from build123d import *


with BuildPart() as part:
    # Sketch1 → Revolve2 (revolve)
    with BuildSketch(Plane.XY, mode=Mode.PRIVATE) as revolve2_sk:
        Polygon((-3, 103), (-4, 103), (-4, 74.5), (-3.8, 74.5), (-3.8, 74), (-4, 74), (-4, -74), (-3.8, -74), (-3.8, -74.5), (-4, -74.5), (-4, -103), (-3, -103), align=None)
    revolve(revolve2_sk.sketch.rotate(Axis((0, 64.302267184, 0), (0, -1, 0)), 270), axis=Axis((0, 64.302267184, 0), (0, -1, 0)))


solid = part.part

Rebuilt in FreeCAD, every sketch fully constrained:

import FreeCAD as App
import Part
import Sketcher
from FreeCAD import Vector

doc = App.newDocument("Part")
body = doc.addObject("PartDesign::Body", "Body")

# Sketch on XY plane
sketch1 = body.newObject("Sketcher::SketchObject", "Sketch")
sketch1.AttachmentSupport = (doc.getObject("XY_Plane"), [""])
sketch1.MapMode = "FlatFace"
sketch1.addGeometry(Part.LineSegment(Vector(-3, 103, 0), Vector(-4, 103, 0)), False)
sketch1.addGeometry(Part.LineSegment(Vector(-4, 103, 0), Vector(-4, 74.5, 0)), False)
sketch1.addGeometry(Part.LineSegment(Vector(-4, 74.5, 0), Vector(-3.8, 74.5, 0)), False)
sketch1.addGeometry(Part.LineSegment(Vector(-3.8, 74.5, 0), Vector(-3.8, 74, 0)), False)
sketch1.addGeometry(Part.LineSegment(Vector(-3.8, 74, 0), Vector(-4, 74, 0)), False)
sketch1.addGeometry(Part.LineSegment(Vector(-4, 74, 0), Vector(-4, -74, 0)), False)
sketch1.addGeometry(Part.LineSegment(Vector(-4, -74, 0), Vector(-3.8, -74, 0)), False)
sketch1.addGeometry(Part.LineSegment(Vector(-3.8, -74, 0), Vector(-3.8, -74.5, 0)), False)
sketch1.addGeometry(Part.LineSegment(Vector(-3.8, -74.5, 0), Vector(-4, -74.5, 0)), False)
sketch1.addGeometry(Part.LineSegment(Vector(-4, -74.5, 0), Vector(-4, -103, 0)), False)
sketch1.addGeometry(Part.LineSegment(Vector(-4, -103, 0), Vector(-3, -103, 0)), False)
sketch1.addGeometry(Part.LineSegment(Vector(-3, -103, 0), Vector(-3, 103, 0)), False)
sketch1.addConstraint(Sketcher.Constraint("Coincident", 0, 2, 1, 1))
sketch1.addConstraint(Sketcher.Constraint("Coincident", 1, 2, 2, 1))
sketch1.addConstraint(Sketcher.Constraint("Coincident", 2, 2, 3, 1))
sketch1.addConstraint(Sketcher.Constraint("Coincident", 3, 2, 4, 1))
sketch1.addConstraint(Sketcher.Constraint("Coincident", 4, 2, 5, 1))
sketch1.addConstraint(Sketcher.Constraint("Coincident", 5, 2, 6, 1))
sketch1.addConstraint(Sketcher.Constraint("Coincident", 6, 2, 7, 1))
sketch1.addConstraint(Sketcher.Constraint("Coincident", 7, 2, 8, 1))
sketch1.addConstraint(Sketcher.Constraint("Coincident", 8, 2, 9, 1))
sketch1.addConstraint(Sketcher.Constraint("Coincident", 9, 2, 10, 1))
sketch1.addConstraint(Sketcher.Constraint("Coincident", 10, 2, 11, 1))
sketch1.addConstraint(Sketcher.Constraint("Coincident", 11, 2, 0, 1))
sketch1.addConstraint(Sketcher.Constraint("Horizontal", 0))
sketch1.addConstraint(Sketcher.Constraint("Vertical", 1))
sketch1.addConstraint(Sketcher.Constraint("Horizontal", 2))
sketch1.addConstraint(Sketcher.Constraint("Vertical", 3))
sketch1.addConstraint(Sketcher.Constraint("Horizontal", 4))
sketch1.addConstraint(Sketcher.Constraint("Vertical", 5))
sketch1.addConstraint(Sketcher.Constraint("Horizontal", 6))
sketch1.addConstraint(Sketcher.Constraint("Vertical", 7))
sketch1.addConstraint(Sketcher.Constraint("Horizontal", 8))
sketch1.addConstraint(Sketcher.Constraint("Vertical", 9))
sketch1.addConstraint(Sketcher.Constraint("Horizontal", 10))
sketch1.addConstraint(Sketcher.Constraint("Vertical", 11))
sketch1.addConstraint(Sketcher.Constraint("Symmetric", 3, 2, 6, 2, -1))
sketch1.addConstraint(Sketcher.Constraint("Symmetric", 1, 2, 8, 2, -1))
sketch1.addConstraint(Sketcher.Constraint("Vertical", 1, 2, 4, 2))
sketch1.addConstraint(Sketcher.Constraint("Equal", 1, 9))
sketch1.addConstraint(Sketcher.Constraint("DistanceX", 0, 2, 0, 1, 1.0))
sketch1.addConstraint(Sketcher.Constraint("DistanceY", 5, 2, 5, 1, 148.0))
sketch1.addConstraint(Sketcher.Constraint("DistanceY", 11, 1, 11, 2, 206.0))
sketch1.addConstraint(Sketcher.Constraint("DistanceX", 2, 1, 2, 2, 0.2))
sketch1.addConstraint(Sketcher.Constraint("DistanceY", 1, 2, 1, 1, 28.5))
sketch1.addConstraint(Sketcher.Constraint("DistanceX", 0, 2, -1, 1, 4.0))
revolution = body.newObject("PartDesign::Revolution", "Revolution")
revolution.Profile = sketch1
revolution.ReferenceAxis = (sketch1, ["V_Axis"])
revolution.Angle = 360

doc.recompute()
